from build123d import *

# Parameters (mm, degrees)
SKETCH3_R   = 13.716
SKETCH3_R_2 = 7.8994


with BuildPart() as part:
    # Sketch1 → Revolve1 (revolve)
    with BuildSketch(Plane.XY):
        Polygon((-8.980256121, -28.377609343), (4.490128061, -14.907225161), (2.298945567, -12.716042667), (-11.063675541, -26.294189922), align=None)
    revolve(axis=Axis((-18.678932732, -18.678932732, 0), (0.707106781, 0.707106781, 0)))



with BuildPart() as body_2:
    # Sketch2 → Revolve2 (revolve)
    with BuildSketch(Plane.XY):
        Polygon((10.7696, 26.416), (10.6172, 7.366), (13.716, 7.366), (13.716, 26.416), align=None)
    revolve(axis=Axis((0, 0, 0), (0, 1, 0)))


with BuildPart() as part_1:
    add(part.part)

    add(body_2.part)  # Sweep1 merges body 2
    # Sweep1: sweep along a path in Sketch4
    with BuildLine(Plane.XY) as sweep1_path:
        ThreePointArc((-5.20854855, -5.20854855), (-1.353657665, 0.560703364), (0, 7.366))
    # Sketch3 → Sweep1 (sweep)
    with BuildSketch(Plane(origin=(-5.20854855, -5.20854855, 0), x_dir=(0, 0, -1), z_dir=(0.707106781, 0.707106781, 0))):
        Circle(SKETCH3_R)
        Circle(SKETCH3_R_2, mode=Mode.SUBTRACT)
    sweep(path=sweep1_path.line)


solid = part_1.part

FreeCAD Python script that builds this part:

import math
import FreeCAD as App
import Part
import Sketcher
from FreeCAD import Vector
Q = App.Units.Quantity


def add_polygon(sketch, points):
    """Adds a closed chain of lines whose ends are joined by coincident constraints."""
    first, n = sketch.GeometryCount, len(points)
    for a, b in zip(points, points[1:] + points[:1]):
        sketch.addGeometry(Part.LineSegment(App.Vector(*a, 0), App.Vector(*b, 0)), False)
    for i in range(n):
        sketch.addConstraint(Sketcher.Constraint("Coincident", first + i, 2, first + (i + 1) % n, 1))

doc = App.newDocument("Part")
body = doc.addObject("PartDesign::Body", "Body")

# Sketch on XY plane
sketch1 = doc.addObject("Sketcher::SketchObject", "Sketch")
body.addObject(sketch1)
sketch1.AttachmentSupport = (doc.XY_Plane, [""])
sketch1.MapMode = "FlatFace"
add_polygon(sketch1, [(-9, -28.4), (4.5, -14.9), (2.3, -12.7), (-11.1, -26.3)])  # lines 0-3
sketch1.addGeometry(Part.LineSegment(Vector(-18.7, -18.7, 0), Vector(-5.2, -5.2, 0)), True)  # axis
sketch1.addConstraint([
    Sketcher.Constraint("Perpendicular", 0, 1),
    Sketcher.Constraint("Parallel", 1, 3),
    Sketcher.Constraint("Perpendicular", 3, 4),
    Sketcher.Constraint("Equal", 0, 4),
    Sketcher.Constraint("Angle", 0, Q("45 deg")),
    Sketcher.Constraint("Distance", 0, Q("0.75 in")),
    Sketcher.Constraint("Distance", 1, Q("0.122 in")),
    Sketcher.Constraint("Distance", 3, Q("0.116 in")),
    Sketcher.Constraint("DistanceX", -1, 1, 0, 2, Q("4.490128 mm")),
    Sketcher.Constraint("DistanceY", 2, 2, -1, 1, Q("26.29419 mm")),
    Sketcher.Constraint("DistanceX", 4, 2, -1, 1, Q("5.208549 mm")),
    Sketcher.Constraint("DistanceY", 4, 2, -1, 1, Q("5.208549 mm")),
])
revolution = doc.addObject("PartDesign::Revolution", "Revolution")
body.addObject(revolution)
revolution.Profile = sketch1
revolution.ReferenceAxis = (sketch1, ["Axis0"])
revolution.Angle = 360
body2 = doc.addObject("PartDesign::Body", "Body001")

# Sketch on XY plane
sketch2 = doc.addObject("Sketcher::SketchObject", "Sketch001")
body2.addObject(sketch2)
sketch2.AttachmentSupport = (doc.getObject("XY_Plane001"), [""])
sketch2.MapMode = "FlatFace"
add_polygon(sketch2, [(10.8, 26.4), (10.6, 7.4), (13.7, 7.4), (13.7, 26.4)])  # lines 0-3
sketch2.addConstraint([
    Sketcher.Constraint("Horizontal", 1),
    Sketcher.Constraint("Vertical", 2),
    Sketcher.Constraint("Horizontal", 3),
    Sketcher.Constraint("DistanceY", 2, 1, 2, 2, Q("0.75 in")),
    Sketcher.Constraint("DistanceX", 1, 1, 1, 2, Q("0.122 in")),
    Sketcher.Constraint("DistanceX", 3, 2, 3, 1, Q("0.116 in")),
    Sketcher.Constraint("DistanceY", -1, 1, 0, 2, Q("0.29 in")),
    Sketcher.Constraint("DistanceX", -1, 1, 1, 2, Q("0.54 in")),
])
revolution2 = doc.addObject("PartDesign::Revolution", "Revolution001")
body2.addObject(revolution2)
revolution2.Profile = sketch2
revolution2.ReferenceAxis = (sketch2, ["V_Axis"])
revolution2.Angle = 360
body.AllowCompound = True
doc.recompute()

boolean = doc.addObject("PartDesign::Boolean", "Boolean")
body.addObject(boolean)
boolean.Type = "Fuse"
boolean.addObjects([body2])

# Sketch on an angled plane
sketch3 = doc.addObject("Sketcher::SketchObject", "Sketch002")
body.addObject(sketch3)
sketch3.Placement = App.Placement(Vector(-5.208549, -5.208549, 0), App.Rotation(Vector(0, 0, -1), Vector(-0.707106781, 0.707106781, 0), Vector(0.707106781, 0.707106781, 0), "ZXY"))
sketch3.addGeometry([
    Part.Circle(Vector(0, 0, 0), Vector(0, 0, 1), 14),
    Part.Circle(Vector(0, 0, 0), Vector(0, 0, 1), 8),
], False)
sketch3.addConstraint([
    Sketcher.Constraint("Coincident", 0, 3, -1, 1),
    Sketcher.Constraint("Coincident", 1, 3, -1, 1),
    Sketcher.Constraint("Diameter", 0, Q("1.08 in")),
    Sketcher.Constraint("Diameter", 1, Q("0.622 in")),
])

# Sketch on XY plane
sketch4 = doc.addObject("Sketcher::SketchObject", "Sketch003")
body.addObject(sketch4)
sketch4.AttachmentSupport = (doc.XY_Plane, [""])
sketch4.MapMode = "FlatFace"
sketch4.addGeometry(Part.ArcOfCircle(Part.Circle(Vector(-18, 7, 0), Vector(0, 0, 1), 18), math.radians(-45), math.radians(0)), False)
sketch4.addConstraint([
    Sketcher.Constraint("PointOnObject", 0, 2, -2),
    Sketcher.Constraint("DistanceY", -1, 1, 0, 3, Q("0.29 in")),
    Sketcher.Constraint("DistanceY", -1, 1, 0, 2, Q("0.29 in")),
    Sketcher.Constraint("Radius", 0, Q("17.783097 mm")),
    Sketcher.Constraint("DistanceX", 0, 1, -1, 1, Q("5.208549 mm")),
])
doc.recompute()

additivepipe = doc.addObject("PartDesign::AdditivePipe", "AdditivePipe")
body.addObject(additivepipe)
additivepipe.Profile = sketch3
additivepipe.Spine = (sketch4, ["Edge1"])

doc.recompute()
